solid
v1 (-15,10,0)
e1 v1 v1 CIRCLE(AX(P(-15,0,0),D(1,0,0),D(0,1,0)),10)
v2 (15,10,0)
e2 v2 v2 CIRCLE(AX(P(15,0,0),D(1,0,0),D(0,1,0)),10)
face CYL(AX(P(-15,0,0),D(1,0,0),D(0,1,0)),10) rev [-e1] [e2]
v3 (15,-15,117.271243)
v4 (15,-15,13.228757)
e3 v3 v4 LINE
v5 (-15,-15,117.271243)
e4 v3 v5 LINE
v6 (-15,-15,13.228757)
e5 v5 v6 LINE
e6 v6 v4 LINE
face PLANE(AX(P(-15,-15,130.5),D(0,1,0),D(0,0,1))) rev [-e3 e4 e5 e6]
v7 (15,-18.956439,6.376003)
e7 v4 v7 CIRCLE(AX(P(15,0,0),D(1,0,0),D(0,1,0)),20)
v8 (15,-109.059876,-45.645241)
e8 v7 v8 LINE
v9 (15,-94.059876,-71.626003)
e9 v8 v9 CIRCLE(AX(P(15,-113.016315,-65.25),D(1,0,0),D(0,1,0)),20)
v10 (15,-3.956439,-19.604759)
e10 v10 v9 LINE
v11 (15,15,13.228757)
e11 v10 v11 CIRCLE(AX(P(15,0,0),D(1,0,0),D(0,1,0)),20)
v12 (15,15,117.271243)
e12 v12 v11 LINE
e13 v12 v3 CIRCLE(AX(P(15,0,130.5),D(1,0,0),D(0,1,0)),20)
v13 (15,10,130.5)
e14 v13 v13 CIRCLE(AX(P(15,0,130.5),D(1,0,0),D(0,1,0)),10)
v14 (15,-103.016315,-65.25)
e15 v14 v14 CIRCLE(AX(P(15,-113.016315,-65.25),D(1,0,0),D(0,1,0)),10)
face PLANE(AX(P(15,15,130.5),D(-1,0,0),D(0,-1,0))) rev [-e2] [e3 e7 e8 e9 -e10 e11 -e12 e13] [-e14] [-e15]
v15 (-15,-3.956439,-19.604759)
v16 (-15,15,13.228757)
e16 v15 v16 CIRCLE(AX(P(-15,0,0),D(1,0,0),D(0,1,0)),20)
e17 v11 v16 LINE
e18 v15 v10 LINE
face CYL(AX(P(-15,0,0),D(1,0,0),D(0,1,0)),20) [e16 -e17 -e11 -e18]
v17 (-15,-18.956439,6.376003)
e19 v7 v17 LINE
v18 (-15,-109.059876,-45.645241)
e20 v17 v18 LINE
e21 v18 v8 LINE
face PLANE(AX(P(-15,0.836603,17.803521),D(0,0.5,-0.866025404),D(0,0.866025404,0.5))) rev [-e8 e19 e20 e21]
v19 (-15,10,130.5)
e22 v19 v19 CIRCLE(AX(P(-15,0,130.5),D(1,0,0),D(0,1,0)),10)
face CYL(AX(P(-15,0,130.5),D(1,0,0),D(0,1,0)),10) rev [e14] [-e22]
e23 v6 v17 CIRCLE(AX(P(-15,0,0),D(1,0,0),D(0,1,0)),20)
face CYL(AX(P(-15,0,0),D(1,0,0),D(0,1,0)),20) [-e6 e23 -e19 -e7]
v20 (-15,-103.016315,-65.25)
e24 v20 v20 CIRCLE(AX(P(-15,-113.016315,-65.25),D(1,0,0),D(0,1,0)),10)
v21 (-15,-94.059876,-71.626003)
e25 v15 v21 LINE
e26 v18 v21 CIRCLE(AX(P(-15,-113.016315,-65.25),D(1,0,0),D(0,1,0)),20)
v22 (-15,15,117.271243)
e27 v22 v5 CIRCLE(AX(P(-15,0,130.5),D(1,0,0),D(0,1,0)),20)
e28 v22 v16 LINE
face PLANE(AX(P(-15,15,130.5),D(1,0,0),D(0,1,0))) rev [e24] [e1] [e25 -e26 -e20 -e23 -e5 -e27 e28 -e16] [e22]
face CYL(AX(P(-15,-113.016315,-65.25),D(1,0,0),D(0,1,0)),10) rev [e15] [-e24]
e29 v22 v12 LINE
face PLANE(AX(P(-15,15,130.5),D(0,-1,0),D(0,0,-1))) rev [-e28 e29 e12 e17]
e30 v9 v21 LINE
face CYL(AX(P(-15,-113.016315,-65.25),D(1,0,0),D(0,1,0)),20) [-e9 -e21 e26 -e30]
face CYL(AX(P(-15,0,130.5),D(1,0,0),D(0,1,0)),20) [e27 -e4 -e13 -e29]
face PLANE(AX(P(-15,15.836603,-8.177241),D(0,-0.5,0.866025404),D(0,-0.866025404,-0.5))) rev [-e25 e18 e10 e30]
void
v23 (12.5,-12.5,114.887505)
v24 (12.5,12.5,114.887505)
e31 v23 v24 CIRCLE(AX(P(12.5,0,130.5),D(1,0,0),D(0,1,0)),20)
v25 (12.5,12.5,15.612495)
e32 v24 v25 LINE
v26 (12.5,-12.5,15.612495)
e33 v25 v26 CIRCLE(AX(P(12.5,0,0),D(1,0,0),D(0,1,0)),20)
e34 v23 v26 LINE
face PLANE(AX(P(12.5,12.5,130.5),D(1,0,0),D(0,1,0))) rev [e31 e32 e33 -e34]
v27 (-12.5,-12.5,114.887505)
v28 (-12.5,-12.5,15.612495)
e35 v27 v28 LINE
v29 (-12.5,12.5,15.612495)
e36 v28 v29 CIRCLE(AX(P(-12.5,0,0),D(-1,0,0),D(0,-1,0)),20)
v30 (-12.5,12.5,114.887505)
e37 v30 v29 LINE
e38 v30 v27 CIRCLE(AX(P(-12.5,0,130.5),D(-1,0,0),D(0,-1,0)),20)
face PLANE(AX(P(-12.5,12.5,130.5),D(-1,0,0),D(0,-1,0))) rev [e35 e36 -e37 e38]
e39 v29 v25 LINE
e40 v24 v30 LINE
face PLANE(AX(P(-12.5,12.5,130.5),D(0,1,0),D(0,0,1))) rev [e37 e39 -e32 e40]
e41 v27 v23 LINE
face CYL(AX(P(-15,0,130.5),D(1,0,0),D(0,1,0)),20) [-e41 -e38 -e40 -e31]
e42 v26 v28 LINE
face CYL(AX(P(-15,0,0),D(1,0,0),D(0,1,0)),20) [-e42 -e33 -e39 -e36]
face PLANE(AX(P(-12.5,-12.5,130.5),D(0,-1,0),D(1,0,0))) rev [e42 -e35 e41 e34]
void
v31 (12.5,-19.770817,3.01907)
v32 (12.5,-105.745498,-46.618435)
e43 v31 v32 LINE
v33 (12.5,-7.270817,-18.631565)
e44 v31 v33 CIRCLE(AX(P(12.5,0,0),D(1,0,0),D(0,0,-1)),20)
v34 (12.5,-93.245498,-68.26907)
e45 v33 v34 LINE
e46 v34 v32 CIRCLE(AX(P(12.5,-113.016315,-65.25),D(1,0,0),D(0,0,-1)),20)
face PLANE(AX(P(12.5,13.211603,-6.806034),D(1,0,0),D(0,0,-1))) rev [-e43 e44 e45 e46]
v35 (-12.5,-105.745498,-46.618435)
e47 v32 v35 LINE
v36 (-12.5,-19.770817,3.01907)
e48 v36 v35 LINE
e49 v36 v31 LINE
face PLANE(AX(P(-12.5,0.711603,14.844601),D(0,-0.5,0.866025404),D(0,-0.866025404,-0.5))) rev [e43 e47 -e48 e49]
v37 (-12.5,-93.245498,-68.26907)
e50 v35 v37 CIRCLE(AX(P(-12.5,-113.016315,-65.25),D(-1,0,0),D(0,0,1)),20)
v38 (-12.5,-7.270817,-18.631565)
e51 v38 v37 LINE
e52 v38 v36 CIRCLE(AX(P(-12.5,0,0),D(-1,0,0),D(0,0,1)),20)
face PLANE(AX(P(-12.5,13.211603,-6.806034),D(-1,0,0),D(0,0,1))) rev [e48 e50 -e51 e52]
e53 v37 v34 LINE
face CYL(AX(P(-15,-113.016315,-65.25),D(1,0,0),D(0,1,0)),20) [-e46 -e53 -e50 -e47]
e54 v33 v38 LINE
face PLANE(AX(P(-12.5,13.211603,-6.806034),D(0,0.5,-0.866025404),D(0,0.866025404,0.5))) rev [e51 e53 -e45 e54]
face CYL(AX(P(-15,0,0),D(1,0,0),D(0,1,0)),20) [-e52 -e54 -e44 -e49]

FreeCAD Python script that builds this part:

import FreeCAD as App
import Part
import Sketcher

V = App.Vector
Q = App.Units.Quantity

doc = App.newDocument("Part")
body = doc.addObject("PartDesign::Body", "Body")

# Sketch on XY plane
sketch1 = body.newObject("Sketcher::SketchObject", "Sketch")
sketch1.AttachmentSupport = (doc.getObject("XY_Plane"), [""])
sketch1.MapMode = "FlatFace"
sketch1.AttachmentOffset = App.Placement(V(0, 0, 130.5), App.Rotation())
sketch1.addGeometry(Part.LineSegment(V(-15, 15, 0), V(-15, -15, 0)), False)
sketch1.addGeometry(Part.LineSegment(V(-15, -15, 0), V(15, -15, 0)), False)
sketch1.addGeometry(Part.LineSegment(V(15, -15, 0), V(15, 15, 0)), False)
sketch1.addGeometry(Part.LineSegment(V(15, 15, 0), V(-15, 15, 0)), False)
sketch1.addGeometry(Part.LineSegment(V(12, -12, 0), V(-12, -12, 0)), False)
sketch1.addGeometry(Part.LineSegment(V(-12, -12, 0), V(-12, 12, 0)), False)
sketch1.addGeometry(Part.LineSegment(V(-12, 12, 0), V(12, 12, 0)), False)
sketch1.addGeometry(Part.LineSegment(V(12, 12, 0), V(12, -12, 0)), False)
sketch1.addConstraint(Sketcher.Constraint("Coincident", 0, 2, 1, 1))
sketch1.addConstraint(Sketcher.Constraint("Coincident", 1, 2, 2, 1))
sketch1.addConstraint(Sketcher.Constraint("Coincident", 2, 2, 3, 1))
sketch1.addConstraint(Sketcher.Constraint("Coincident", 3, 2, 0, 1))
sketch1.addConstraint(Sketcher.Constraint("Coincident", 4, 2, 5, 1))
sketch1.addConstraint(Sketcher.Constraint("Coincident", 5, 2, 6, 1))
sketch1.addConstraint(Sketcher.Constraint("Coincident", 6, 2, 7, 1))
sketch1.addConstraint(Sketcher.Constraint("Coincident", 7, 2, 4, 1))
sketch1.addConstraint(Sketcher.Constraint("Vertical", 0))
sketch1.addConstraint(Sketcher.Constraint("Horizontal", 1))
sketch1.addConstraint(Sketcher.Constraint("Vertical", 2))
sketch1.addConstraint(Sketcher.Constraint("Horizontal", 3))
sketch1.addConstraint(Sketcher.Constraint("Horizontal", 4))
sketch1.addConstraint(Sketcher.Constraint("Vertical", 5))
sketch1.addConstraint(Sketcher.Constraint("Horizontal", 6))
sketch1.addConstraint(Sketcher.Constraint("Vertical", 7))
sketch1.addConstraint(Sketcher.Constraint("Symmetric", 0, 2, 2, 2, -1, 1))
sketch1.addConstraint(Sketcher.Constraint("Symmetric", 4, 2, 6, 2, -1, 1))
sketch1.addConstraint(Sketcher.Constraint("Equal", 3, 0))
sketch1.addConstraint(Sketcher.Constraint("Equal", 6, 5))
sketch1.addConstraint(Sketcher.Constraint("DistanceX", 1, 1, 1, 2, Q("30 mm")))
sketch1.addConstraint(Sketcher.Constraint("DistanceX", 4, 2, 4, 1, Q("25 mm")))

# Sketch on YZ plane
sketch2 = body.newObject("Sketcher::SketchObject", "Sketch001")
sketch2.AttachmentSupport = (doc.getObject("YZ_Plane"), [""])
sketch2.MapMode = "FlatFace"
sketch2.addGeometry(Part.LineSegment(V(0, 130, 0), V(0, 0, 0)), False)
sketch2.addGeometry(Part.LineSegment(V(0, 0, 0), V(-113, -65, 0)), False)
sketch2.addConstraint(Sketcher.Constraint("Coincident", 0, 2, 1, 1))
sketch2.addConstraint(Sketcher.Constraint("Vertical", 0))
sketch2.addConstraint(Sketcher.Constraint("Coincident", 0, 2, -1, 1))
sketch2.addConstraint(Sketcher.Constraint("Angle", 1, Q("-150 deg")))
sketch2.addConstraint(Sketcher.Constraint("DistanceY", 0, 2, 0, 1, Q("130.5 mm")))
sketch2.addConstraint(Sketcher.Constraint("Distance", 1, Q("130.5 mm")))
doc.recompute()

additivepipe = body.newObject("PartDesign::AdditivePipe", "AdditivePipe")
additivepipe.Profile = sketch1
additivepipe.Spine = (sketch2, ["Edge1", "Edge2"])
additivepipe.Transition = "Right corner"

# Sketch on YZ plane
sketch3 = body.newObject("Sketcher::SketchObject", "Sketch002")
sketch3.AttachmentSupport = (doc.getObject("YZ_Plane"), [""])
sketch3.MapMode = "FlatFace"
sketch3.AttachmentOffset = App.Placement(V(0, 0, 15), App.Rotation())
sketch3.addGeometry(Part.Circle(V(0, 0, 0), V(0, 0, 1), 20), False)
sketch3.addGeometry(Part.Circle(V(-113, -65, 0), V(0, 0, 1), 20), False)
sketch3.addGeometry(Part.Circle(V(0, 130, 0), V(0, 0, 1), 20), False)
sketch3.addConstraint(Sketcher.Constraint("Coincident", 0, 3, -1, 1))
sketch3.addConstraint(Sketcher.Constraint("Equal", 0, 1))
sketch3.addConstraint(Sketcher.Constraint("Equal", 1, 2))
sketch3.addConstraint(Sketcher.Constraint("PointOnObject", 2, 3, -2))
sketch3.addConstraint(Sketcher.Constraint("Diameter", 0, Q("40 mm")))
sketch3.addConstraint(Sketcher.Constraint("DistanceY", -1, 1, 2, 3, Q("130.5 mm")))
sketch3.addConstraint(Sketcher.Constraint("DistanceY", 1, 3, -1, 1, Q("65.25 mm")))
sketch3.addConstraint(Sketcher.Constraint("DistanceX", 1, 3, -1, 1, Q("113.016315 mm")))
pad1 = body.newObject("PartDesign::Pad", "Pad")
pad1.Profile = sketch3
pad1.Length = 30
pad1.Reversed = True

# Sketch on YZ plane
sketch4 = body.newObject("Sketcher::SketchObject", "Sketch003")
sketch4.AttachmentSupport = (doc.getObject("YZ_Plane"), [""])
sketch4.MapMode = "FlatFace"
sketch4.AttachmentOffset = App.Placement(V(0, 0, 15), App.Rotation())
sketch4.addGeometry(Part.Circle(V(0, 130, 0), V(0, 0, 1), 10), False)
sketch4.addGeometry(Part.Circle(V(0, 0, 0), V(0, 0, 1), 10), False)
sketch4.addGeometry(Part.Circle(V(-113, -65, 0), V(0, 0, 1), 10), False)
sketch4.addConstraint(Sketcher.Constraint("Coincident", 1, 3, -1, 1))
sketch4.addConstraint(Sketcher.Constraint("Equal", 0, 1))
sketch4.addConstraint(Sketcher.Constraint("Equal", 1, 2))
sketch4.addConstraint(Sketcher.Constraint("PointOnObject", 0, 3, -2))
sketch4.addConstraint(Sketcher.Constraint("Diameter", 0, Q("20 mm")))
sketch4.addConstraint(Sketcher.Constraint("DistanceY", -1, 1, 0, 3, Q("130.5 mm")))
sketch4.addConstraint(Sketcher.Constraint("DistanceY", 2, 3, -1, 1, Q("65.25 mm")))
sketch4.addConstraint(Sketcher.Constraint("DistanceX", 2, 3, -1, 1, Q("113.016315 mm")))
pocket1 = body.newObject("PartDesign::Pocket", "Pocket")
pocket1.Profile = sketch4
pocket1.Length = 30

doc.recompute()
